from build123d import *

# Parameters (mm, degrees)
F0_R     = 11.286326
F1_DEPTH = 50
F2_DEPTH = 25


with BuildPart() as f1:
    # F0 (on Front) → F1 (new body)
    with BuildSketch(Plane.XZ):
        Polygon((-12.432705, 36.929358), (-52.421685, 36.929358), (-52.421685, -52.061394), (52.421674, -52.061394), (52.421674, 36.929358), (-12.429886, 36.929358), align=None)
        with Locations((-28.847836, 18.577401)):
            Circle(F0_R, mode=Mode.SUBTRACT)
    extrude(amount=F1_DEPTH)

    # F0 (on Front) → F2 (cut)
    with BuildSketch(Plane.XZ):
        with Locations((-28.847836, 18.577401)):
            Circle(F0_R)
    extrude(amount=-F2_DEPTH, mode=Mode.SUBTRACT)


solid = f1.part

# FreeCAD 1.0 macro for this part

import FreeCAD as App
import Part
import Sketcher

V = App.Vector
Q = App.Units.Quantity


def add_polygon(sketch, points):
    """Adds a closed chain of lines whose ends are joined by coincident constraints."""
    first, n = sketch.GeometryCount, len(points)
    for a, b in zip(points, points[1:] + points[:1]):
        sketch.addGeometry(Part.LineSegment(App.Vector(*a, 0), App.Vector(*b, 0)), False)
    for i in range(n):
        sketch.addConstraint(Sketcher.Constraint("Coincident", first + i, 2, first + (i + 1) % n, 1))

doc = App.newDocument("Part")
body = doc.addObject("PartDesign::Body", "Body")

# Sketch on XZ plane
sketch1 = body.newObject("Sketcher::SketchObject", "Sketch")
sketch1.AttachmentSupport = (doc.getObject("XZ_Plane"), [""])
sketch1.MapMode = "FlatFace"
add_polygon(sketch1, [(-52, 37), (-52, -52), (52, -52), (52, 37)])  # lines 0-3
sketch1.addGeometry(Part.Circle(V(-29, 19, 0), V(0, 0, 1), 11), False)  # 4
sketch1.addConstraint([
    Sketcher.Constraint("Vertical", 0),
    Sketcher.Constraint("Horizontal", 1),
    Sketcher.Constraint("Vertical", 2),
    Sketcher.Constraint("Horizontal", 3),
    Sketcher.Constraint("Diameter", 4, Q("22.572652 mm")),
    Sketcher.Constraint("DistanceX", 1, 1, 1, 2, Q("104.843359 mm")),
    Sketcher.Constraint("DistanceY", 0, 2, 0, 1, Q("88.990752 mm")),
    Sketcher.Constraint("DistanceY", -1, 1, 4, 3, Q("18.577401 mm")),
    Sketcher.Constraint("DistanceX", 0, 2, 4, 3, Q("23.573849 mm")),
    Sketcher.Constraint("DistanceX", 4, 3, -1, 1, Q("28.847836 mm")),
    Sketcher.Constraint("DistanceY", 0, 2, -1, 1, Q("52.061394 mm")),
])
pad1 = body.newObject("PartDesign::Pad", "Pad")
pad1.Profile = sketch1
pad1.Length = 50

# Sketch on XZ plane
sketch2 = body.newObject("Sketcher::SketchObject", "Sketch001")
sketch2.AttachmentSupport = (doc.getObject("XZ_Plane"), [""])
sketch2.MapMode = "FlatFace"
sketch2.addGeometry(Part.Circle(V(-29, 19, 0), V(0, 0, 1), 11), False)
sketch2.addConstraint([
    Sketcher.Constraint("Diameter", 0, Q("22.572652 mm")),
    Sketcher.Constraint("DistanceY", -1, 1, 0, 3, Q("18.577401 mm")),
    Sketcher.Constraint("DistanceX", 0, 3, -1, 1, Q("28.847836 mm")),
])
pocket1 = body.newObject("PartDesign::Pocket", "Pocket")
pocket1.Profile = sketch2
pocket1.Length = 25

doc.recompute()
